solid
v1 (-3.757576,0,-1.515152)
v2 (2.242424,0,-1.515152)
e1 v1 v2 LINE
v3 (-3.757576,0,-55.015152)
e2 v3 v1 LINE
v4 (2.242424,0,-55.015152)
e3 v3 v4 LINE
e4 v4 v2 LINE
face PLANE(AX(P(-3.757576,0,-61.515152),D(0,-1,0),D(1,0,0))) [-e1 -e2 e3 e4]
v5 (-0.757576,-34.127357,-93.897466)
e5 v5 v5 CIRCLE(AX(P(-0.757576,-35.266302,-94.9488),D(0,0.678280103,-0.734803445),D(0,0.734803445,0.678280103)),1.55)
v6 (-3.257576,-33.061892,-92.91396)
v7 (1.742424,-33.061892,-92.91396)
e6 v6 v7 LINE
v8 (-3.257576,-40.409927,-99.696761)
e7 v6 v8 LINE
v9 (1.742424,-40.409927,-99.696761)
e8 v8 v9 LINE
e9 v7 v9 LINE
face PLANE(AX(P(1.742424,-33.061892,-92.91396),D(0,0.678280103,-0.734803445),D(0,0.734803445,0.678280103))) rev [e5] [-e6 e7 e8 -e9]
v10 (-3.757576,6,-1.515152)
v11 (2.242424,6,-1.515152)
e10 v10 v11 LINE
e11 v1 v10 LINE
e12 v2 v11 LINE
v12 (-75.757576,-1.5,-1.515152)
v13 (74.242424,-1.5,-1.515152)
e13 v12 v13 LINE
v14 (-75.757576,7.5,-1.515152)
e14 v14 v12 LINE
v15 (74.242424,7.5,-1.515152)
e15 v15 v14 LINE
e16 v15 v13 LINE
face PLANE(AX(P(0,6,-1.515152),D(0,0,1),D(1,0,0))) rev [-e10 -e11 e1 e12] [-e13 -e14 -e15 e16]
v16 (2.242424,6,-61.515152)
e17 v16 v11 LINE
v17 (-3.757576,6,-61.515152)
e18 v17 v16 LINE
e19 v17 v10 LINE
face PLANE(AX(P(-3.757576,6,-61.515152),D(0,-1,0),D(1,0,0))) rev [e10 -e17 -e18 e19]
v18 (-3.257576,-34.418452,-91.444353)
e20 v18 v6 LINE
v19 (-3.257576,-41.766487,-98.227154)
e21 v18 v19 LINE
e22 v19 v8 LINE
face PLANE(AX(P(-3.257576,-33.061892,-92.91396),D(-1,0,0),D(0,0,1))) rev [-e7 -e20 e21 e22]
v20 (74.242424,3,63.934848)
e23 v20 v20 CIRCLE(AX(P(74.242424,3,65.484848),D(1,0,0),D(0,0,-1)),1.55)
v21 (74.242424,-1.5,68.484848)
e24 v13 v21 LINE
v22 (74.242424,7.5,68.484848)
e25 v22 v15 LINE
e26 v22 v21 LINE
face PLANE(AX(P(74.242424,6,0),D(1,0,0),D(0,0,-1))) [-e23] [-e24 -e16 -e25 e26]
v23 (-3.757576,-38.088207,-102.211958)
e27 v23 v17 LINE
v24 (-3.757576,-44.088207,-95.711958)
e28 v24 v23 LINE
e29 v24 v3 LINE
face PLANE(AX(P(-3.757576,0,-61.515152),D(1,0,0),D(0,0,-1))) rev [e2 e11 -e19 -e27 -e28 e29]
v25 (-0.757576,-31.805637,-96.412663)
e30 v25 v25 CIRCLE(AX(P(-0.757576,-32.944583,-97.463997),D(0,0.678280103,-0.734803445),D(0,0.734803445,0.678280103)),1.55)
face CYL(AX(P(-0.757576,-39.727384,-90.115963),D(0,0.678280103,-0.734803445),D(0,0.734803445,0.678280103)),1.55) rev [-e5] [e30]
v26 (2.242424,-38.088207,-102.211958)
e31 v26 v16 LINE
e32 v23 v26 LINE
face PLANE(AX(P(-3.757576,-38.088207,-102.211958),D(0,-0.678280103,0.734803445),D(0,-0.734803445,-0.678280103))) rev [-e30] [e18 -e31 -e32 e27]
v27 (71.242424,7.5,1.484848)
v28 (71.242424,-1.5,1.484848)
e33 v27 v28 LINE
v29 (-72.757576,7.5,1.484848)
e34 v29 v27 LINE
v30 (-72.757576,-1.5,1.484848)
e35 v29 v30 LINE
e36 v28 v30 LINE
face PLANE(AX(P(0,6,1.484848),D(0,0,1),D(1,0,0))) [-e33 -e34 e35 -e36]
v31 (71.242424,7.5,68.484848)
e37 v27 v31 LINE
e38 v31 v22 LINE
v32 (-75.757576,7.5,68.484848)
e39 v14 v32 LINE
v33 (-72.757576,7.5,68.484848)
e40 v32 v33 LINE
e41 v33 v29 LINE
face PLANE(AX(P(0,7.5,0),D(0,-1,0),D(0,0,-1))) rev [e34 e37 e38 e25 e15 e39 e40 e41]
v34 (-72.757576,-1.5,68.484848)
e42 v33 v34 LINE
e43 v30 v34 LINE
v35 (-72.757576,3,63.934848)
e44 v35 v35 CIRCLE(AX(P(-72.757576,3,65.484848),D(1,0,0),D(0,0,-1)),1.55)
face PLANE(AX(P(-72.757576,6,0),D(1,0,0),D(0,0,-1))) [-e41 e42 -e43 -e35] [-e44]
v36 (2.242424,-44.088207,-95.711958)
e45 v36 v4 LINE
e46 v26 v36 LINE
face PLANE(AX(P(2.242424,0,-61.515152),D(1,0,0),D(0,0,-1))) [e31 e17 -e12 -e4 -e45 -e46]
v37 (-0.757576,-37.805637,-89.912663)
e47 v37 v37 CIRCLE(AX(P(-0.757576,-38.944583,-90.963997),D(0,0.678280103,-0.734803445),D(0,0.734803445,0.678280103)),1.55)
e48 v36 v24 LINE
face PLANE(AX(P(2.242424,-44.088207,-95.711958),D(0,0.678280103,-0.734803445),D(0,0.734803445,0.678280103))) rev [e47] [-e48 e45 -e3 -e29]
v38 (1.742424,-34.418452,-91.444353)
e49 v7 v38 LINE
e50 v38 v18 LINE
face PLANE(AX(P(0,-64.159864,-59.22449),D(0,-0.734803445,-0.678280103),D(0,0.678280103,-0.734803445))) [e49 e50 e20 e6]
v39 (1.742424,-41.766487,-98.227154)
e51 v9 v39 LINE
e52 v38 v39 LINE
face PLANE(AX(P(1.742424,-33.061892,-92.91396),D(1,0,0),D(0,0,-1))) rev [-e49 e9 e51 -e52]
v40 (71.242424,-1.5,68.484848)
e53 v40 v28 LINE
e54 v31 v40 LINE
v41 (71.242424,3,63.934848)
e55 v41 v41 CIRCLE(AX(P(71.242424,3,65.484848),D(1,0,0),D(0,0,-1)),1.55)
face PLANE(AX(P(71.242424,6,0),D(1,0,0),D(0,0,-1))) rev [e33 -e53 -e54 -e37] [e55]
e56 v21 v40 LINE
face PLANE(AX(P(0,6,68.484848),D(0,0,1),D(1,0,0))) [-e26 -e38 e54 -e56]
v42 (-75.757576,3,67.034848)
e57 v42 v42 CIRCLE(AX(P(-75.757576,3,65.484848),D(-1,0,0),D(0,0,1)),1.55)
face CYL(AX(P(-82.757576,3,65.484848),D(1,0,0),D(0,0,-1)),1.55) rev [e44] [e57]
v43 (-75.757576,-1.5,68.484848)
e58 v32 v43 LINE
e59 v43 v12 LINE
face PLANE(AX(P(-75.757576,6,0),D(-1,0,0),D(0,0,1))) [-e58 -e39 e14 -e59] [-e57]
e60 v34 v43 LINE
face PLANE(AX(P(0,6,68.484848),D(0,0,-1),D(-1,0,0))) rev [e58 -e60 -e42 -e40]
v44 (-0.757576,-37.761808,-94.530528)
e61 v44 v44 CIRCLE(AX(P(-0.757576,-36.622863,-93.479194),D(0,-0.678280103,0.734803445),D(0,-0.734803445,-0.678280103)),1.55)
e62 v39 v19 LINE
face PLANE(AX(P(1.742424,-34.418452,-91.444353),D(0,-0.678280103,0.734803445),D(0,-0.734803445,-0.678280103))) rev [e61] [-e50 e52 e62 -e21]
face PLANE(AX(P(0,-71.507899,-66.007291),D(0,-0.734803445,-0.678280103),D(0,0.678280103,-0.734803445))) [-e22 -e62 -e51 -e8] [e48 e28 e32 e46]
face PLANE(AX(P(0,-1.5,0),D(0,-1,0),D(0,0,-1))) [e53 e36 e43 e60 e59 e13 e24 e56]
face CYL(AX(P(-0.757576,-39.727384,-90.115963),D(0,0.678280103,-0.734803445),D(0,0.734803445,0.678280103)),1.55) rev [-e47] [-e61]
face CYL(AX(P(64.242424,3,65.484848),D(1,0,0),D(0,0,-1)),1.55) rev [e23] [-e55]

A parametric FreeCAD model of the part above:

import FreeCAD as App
import Part
import Sketcher
Q = App.Units.Quantity

doc = App.newDocument("Part")
body = doc.addObject("PartDesign::Body", "Body")

# Sketch on XZ plane
sketch1 = doc.addObject("Sketcher::SketchObject", "Sketch")
body.addObject(sketch1)
sketch1.AttachmentSupport = (doc.XZ_Plane, [""])
sketch1.MapMode = "FlatFace"
sketch1.addGeometry([
    Part.LineSegment(App.Vector(-72.8, 68.5, 0), App.Vector(-72.8, 1.5, 0)),  # 0
    Part.LineSegment(App.Vector(-72.8, 1.5, 0), App.Vector(71.2, 1.5, 0)),  # 1
    Part.LineSegment(App.Vector(71.2, 1.5, 0), App.Vector(71.2, 68.5, 0)),  # 2
    Part.LineSegment(App.Vector(71.2, 68.5, 0), App.Vector(74.2, 68.5, 0)),  # 3
    Part.LineSegment(App.Vector(74.2, 68.5, 0), App.Vector(74.2, -1.5, 0)),  # 4
    Part.LineSegment(App.Vector(74.2, -1.5, 0), App.Vector(-75.8, -1.5, 0)),  # 5
    Part.LineSegment(App.Vector(-75.8, -1.5, 0), App.Vector(-75.8, 68.5, 0)),  # 6
    Part.LineSegment(App.Vector(-75.8, 68.5, 0), App.Vector(-72.8, 68.5, 0)),  # 7
], False)
sketch1.addConstraint([
    Sketcher.Constraint("Coincident", 0, 2, 1, 1),
    Sketcher.Constraint("Coincident", 1, 2, 2, 1),
    Sketcher.Constraint("Coincident", 2, 2, 3, 1),
    Sketcher.Constraint("Coincident", 3, 2, 4, 1),
    Sketcher.Constraint("Coincident", 4, 2, 5, 1),
    Sketcher.Constraint("Coincident", 5, 2, 6, 1),
    Sketcher.Constraint("Coincident", 6, 2, 7, 1),
    Sketcher.Constraint("Coincident", 7, 2, 0, 1),
    Sketcher.Constraint("Vertical", 0),
    Sketcher.Constraint("Horizontal", 1),
    Sketcher.Constraint("Vertical", 2),
    Sketcher.Constraint("Horizontal", 3),
    Sketcher.Constraint("Vertical", 4),
    Sketcher.Constraint("Horizontal", 5),
    Sketcher.Constraint("Vertical", 6),
    Sketcher.Constraint("Horizontal", 7),
    Sketcher.Constraint("Horizontal", 3, 2, 6, 2),
    Sketcher.Constraint("Equal", 3, 7),
    Sketcher.Constraint("DistanceX", 1, 1, 1, 2, Q("144 mm")),
    Sketcher.Constraint("DistanceX", 3, 1, 3, 2, Q("3 mm")),
    Sketcher.Constraint("DistanceY", 0, 2, 0, 1, Q("67 mm")),
    Sketcher.Constraint("DistanceY", 4, 2, 4, 1, Q("70 mm")),
    Sketcher.Constraint("DistanceY", -1, 1, 0, 2, Q("1.484848 mm")),
    Sketcher.Constraint("DistanceX", 0, 2, -1, 1, Q("72.757576 mm")),
])
pad1 = doc.addObject("PartDesign::Pad", "Pad")
body.addObject(pad1)
pad1.Profile = sketch1
pad1.Length = 6
pad1.Reversed = True

# Sketch on YZ plane
sketch2 = doc.addObject("Sketcher::SketchObject", "Sketch001")
body.addObject(sketch2)
sketch2.AttachmentSupport = (doc.YZ_Plane, [""])
sketch2.MapMode = "FlatFace"
sketch2.AttachmentOffset = App.Placement(App.Vector(0, 0, -72.757576), App.Rotation())
sketch2.addGeometry(Part.Circle(App.Vector(3, 65.5, 0), App.Vector(0, 0, 1), 1.6), False)
sketch2.addConstraint([
    Sketcher.Constraint("Diameter", 0, Q("3.1 mm")),
    Sketcher.Constraint("DistanceX", -1, 1, 0, 3, Q("3 mm")),
    Sketcher.Constraint("DistanceY", -1, 1, 0, 3, Q("65.484848 mm")),
])
pocket1 = doc.addObject("PartDesign::Pocket", "Pocket")
body.addObject(pocket1)
pocket1.Profile = sketch2
pocket1.Length = 10

# Sketch on YZ plane
sketch3 = doc.addObject("Sketcher::SketchObject", "Sketch002")
body.addObject(sketch3)
sketch3.AttachmentSupport = (doc.YZ_Plane, [""])
sketch3.MapMode = "FlatFace"
sketch3.AttachmentOffset = App.Placement(App.Vector(0, 0, 74.242424), App.Rotation())
sketch3.addGeometry(Part.Circle(App.Vector(3, 65.5, 0), App.Vector(0, 0, 1), 1.6), False)
sketch3.addConstraint([
    Sketcher.Constraint("Diameter", 0, Q("3.1 mm")),
    Sketcher.Constraint("DistanceX", -1, 1, 0, 3, Q("3 mm")),
    Sketcher.Constraint("DistanceY", -1, 1, 0, 3, Q("65.484848 mm")),
])
pocket2 = doc.addObject("PartDesign::Pocket", "Pocket001")
body.addObject(pocket2)
pocket2.Profile = sketch3
pocket2.Length = 10

# Sketch on XZ plane
sketch4 = doc.addObject("Sketcher::SketchObject", "Sketch003")
body.addObject(sketch4)
sketch4.AttachmentSupport = (doc.XZ_Plane, [""])
sketch4.MapMode = "FlatFace"
sketch4.AttachmentOffset = App.Placement(App.Vector(0, 0, -6), App.Rotation())
sketch4.addGeometry([
    Part.LineSegment(App.Vector(74.2, -1.5, 0), App.Vector(-75.8, -1.5, 0)),  # 0
    Part.LineSegment(App.Vector(-75.8, -1.5, 0), App.Vector(-75.8, 68.5, 0)),  # 1
    Part.LineSegment(App.Vector(-75.8, 68.5, 0), App.Vector(-72.8, 68.5, 0)),  # 2
    Part.LineSegment(App.Vector(-72.8, 68.5, 0), App.Vector(-72.8, 1.5, 0)),  # 3
    Part.LineSegment(App.Vector(-72.8, 1.5, 0), App.Vector(71.2, 1.5, 0)),  # 4
    Part.LineSegment(App.Vector(71.2, 1.5, 0), App.Vector(71.2, 68.5, 0)),  # 5
    Part.LineSegment(App.Vector(71.2, 68.5, 0), App.Vector(74.2, 68.5, 0)),  # 6
    Part.LineSegment(App.Vector(74.2, 68.5, 0), App.Vector(74.2, -1.5, 0)),  # 7
], False)
sketch4.addConstraint([
    Sketcher.Constraint("Coincident", 0, 2, 1, 1),
    Sketcher.Constraint("Coincident", 1, 2, 2, 1),
    Sketcher.Constraint("Coincident", 2, 2, 3, 1),
    Sketcher.Constraint("Coincident", 3, 2, 4, 1),
    Sketcher.Constraint("Coincident", 4, 2, 5, 1),
    Sketcher.Constraint("Coincident", 5, 2, 6, 1),
    Sketcher.Constraint("Coincident", 6, 2, 7, 1),
    Sketcher.Constraint("Coincident", 7, 2, 0, 1),
    Sketcher.Constraint("Horizontal", 0),
    Sketcher.Constraint("Vertical", 1),
    Sketcher.Constraint("Horizontal", 2),
    Sketcher.Constraint("Vertical", 3),
    Sketcher.Constraint("Horizontal", 4),
    Sketcher.Constraint("Vertical", 5),
    Sketcher.Constraint("Horizontal", 6),
    Sketcher.Constraint("Vertical", 7),
    Sketcher.Constraint("Horizontal", 2, 2, 5, 2),
    Sketcher.Constraint("Equal", 2, 6),
    Sketcher.Constraint("DistanceX", 0, 2, 0, 1, Q("150 mm")),
    Sketcher.Constraint("DistanceX", 2, 1, 2, 2, Q("3 mm")),
    Sketcher.Constraint("DistanceY", 1, 1, 1, 2, Q("70 mm")),
    Sketcher.Constraint("DistanceY", 3, 2, 3, 1, Q("67 mm")),
    Sketcher.Constraint("DistanceY", 0, 2, -1, 1, Q("1.515152 mm")),
    Sketcher.Constraint("DistanceX", 0, 2, -1, 1, Q("75.757576 mm")),
])
pad2 = doc.addObject("PartDesign::Pad", "Pad001")
body.addObject(pad2)
pad2.Profile = sketch4
pad2.Length = 1.5
pad2.Reversed = True

# Sketch on XZ plane
sketch5 = doc.addObject("Sketcher::SketchObject", "Sketch004")
body.addObject(sketch5)
sketch5.AttachmentSupport = (doc.XZ_Plane, [""])
sketch5.MapMode = "FlatFace"
sketch5.addGeometry([
    Part.LineSegment(App.Vector(-75.8, 68.5, 0), App.Vector(-75.8, -1.5, 0)),  # 0
    Part.LineSegment(App.Vector(-75.8, -1.5, 0), App.Vector(74.2, -1.5, 0)),  # 1
    Part.LineSegment(App.Vector(74.2, -1.5, 0), App.Vector(74.2, 68.5, 0)),  # 2
    Part.LineSegment(App.Vector(74.2, 68.5, 0), App.Vector(71.2, 68.5, 0)),  # 3
    Part.LineSegment(App.Vector(71.2, 68.5, 0), App.Vector(71.2, 1.5, 0)),  # 4
    Part.LineSegment(App.Vector(71.2, 1.5, 0), App.Vector(-72.8, 1.5, 0)),  # 5
    Part.LineSegment(App.Vector(-72.8, 1.5, 0), App.Vector(-72.8, 68.5, 0)),  # 6
    Part.LineSegment(App.Vector(-72.8, 68.5, 0), App.Vector(-75.8, 68.5, 0)),  # 7
], False)
sketch5.addConstraint([
    Sketcher.Constraint("Coincident", 0, 2, 1, 1),
    Sketcher.Constraint("Coincident", 1, 2, 2, 1),
    Sketcher.Constraint("Coincident", 2, 2, 3, 1),
    Sketcher.Constraint("Coincident", 3, 2, 4, 1),
    Sketcher.Constraint("Coincident", 4, 2, 5, 1),
    Sketcher.Constraint("Coincident", 5, 2, 6, 1),
    Sketcher.Constraint("Coincident", 6, 2, 7, 1),
    Sketcher.Constraint("Coincident", 7, 2, 0, 1),
    Sketcher.Constraint("Vertical", 0),
    Sketcher.Constraint("Horizontal", 1),
    Sketcher.Constraint("Vertical", 2),
    Sketcher.Constraint("Horizontal", 3),
    Sketcher.Constraint("Vertical", 4),
    Sketcher.Constraint("Horizontal", 5),
    Sketcher.Constraint("Vertical", 6),
    Sketcher.Constraint("Horizontal", 7),
    Sketcher.Constraint("Horizontal", 3, 2, 6, 2),
    Sketcher.Constraint("Equal", 3, 7),
    Sketcher.Constraint("DistanceX", 1, 1, 1, 2, Q("150 mm")),
    Sketcher.Constraint("DistanceX", 3, 2, 3, 1, Q("3 mm")),
    Sketcher.Constraint("DistanceY", 0, 2, 0, 1, Q("70 mm")),
    Sketcher.Constraint("DistanceY", 4, 2, 4, 1, Q("67 mm")),
    Sketcher.Constraint("DistanceY", 0, 2, -1, 1, Q("1.515152 mm")),
    Sketcher.Constraint("DistanceX", 0, 2, -1, 1, Q("75.757576 mm")),
])
pad3 = doc.addObject("PartDesign::Pad", "Pad002")
body.addObject(pad3)
pad3.Profile = sketch5
pad3.Length = 1.5

# Sketch on XY plane
sketch6 = doc.addObject("Sketcher::SketchObject", "Sketch005")
body.addObject(sketch6)
sketch6.AttachmentSupport = (doc.XY_Plane, [""])
sketch6.MapMode = "FlatFace"
sketch6.AttachmentOffset = App.Placement(App.Vector(0, 0, -1.515152), App.Rotation())
sketch6.addGeometry([
    Part.LineSegment(App.Vector(2, 6, 0), App.Vector(2, 0, 0)),
    Part.LineSegment(App.Vector(2, 0, 0), App.Vector(-4, 0, 0)),
    Part.LineSegment(App.Vector(-4, 0, 0), App.Vector(-4, 6, 0)),
    Part.LineSegment(App.Vector(-4, 6, 0), App.Vector(2, 6, 0)),
], False)
sketch6.addConstraint([
    Sketcher.Constraint("Coincident", 0, 2, 1, 1),
    Sketcher.Constraint("Coincident", 1, 2, 2, 1),
    Sketcher.Constraint("Coincident", 2, 2, 3, 1),
    Sketcher.Constraint("Coincident", 3, 2, 0, 1),
    Sketcher.Constraint("Vertical", 0),
    Sketcher.Constraint("Horizontal", 1),
    Sketcher.Constraint("Vertical", 2),
    Sketcher.Constraint("Horizontal", 3),
    Sketcher.Constraint("PointOnObject", 0, 2, -1),
    Sketcher.Constraint("Equal", 3, 0),
    Sketcher.Constraint("DistanceX", 1, 2, 1, 1, Q("6 mm")),
    Sketcher.Constraint("DistanceX", -1, 1, 0, 2, Q("2.242424 mm")),
])
pad4 = doc.addObject("PartDesign::Pad", "Pad003")
body.addObject(pad4)
pad4.Profile = sketch6
pad4.Length = 60
pad4.Reversed = True

# Sketch on YZ plane
sketch7 = doc.addObject("Sketcher::SketchObject", "Sketch006")
body.addObject(sketch7)
sketch7.AttachmentSupport = (doc.YZ_Plane, [""])
sketch7.MapMode = "FlatFace"
sketch7.AttachmentOffset = App.Placement(App.Vector(0, 0, 2.242424), App.Rotation())
sketch7.addGeometry([
    Part.LineSegment(App.Vector(6, -62, 0), App.Vector(0, -55, 0)),
    Part.LineSegment(App.Vector(0, -55, 0), App.Vector(0, -62, 0)),
    Part.LineSegment(App.Vector(0, -62, 0), App.Vector(6, -62, 0)),
], False)
sketch7.addConstraint([
    Sketcher.Constraint("Coincident", 0, 2, 1, 1),
    Sketcher.Constraint("Coincident", 1, 2, 2, 1),
    Sketcher.Constraint("Coincident", 2, 2, 0, 1),
    Sketcher.Constraint("Vertical", 1),
    Sketcher.Constraint("Horizontal", 2),
    Sketcher.Constraint("PointOnObject", 0, 2, -2),
    Sketcher.Constraint("DistanceX", 2, 1, 2, 2, Q("6 mm")),
    Sketcher.Constraint("DistanceY", 1, 2, 1, 1, Q("6.5 mm")),
    Sketcher.Constraint("DistanceY", 0, 2, -1, 1, Q("55.015152 mm")),
])
pocket3 = doc.addObject("PartDesign::Pocket", "Pocket002")
body.addObject(pocket3)
pocket3.Profile = sketch7
pocket3.Length = 60

# Sketch on an angled plane
sketch8 = doc.addObject("Sketcher::SketchObject", "Sketch007")
body.addObject(sketch8)
sketch8.Placement = App.Placement(App.Vector(0, -27.419692, -25.310485), App.Rotation(App.Vector(1, 0, 0), App.Vector(0, -0.678280103, 0.734803445), App.Vector(0, -0.734803445, -0.678280103), "ZXY"))
sketch8.addGeometry([
    Part.LineSegment(App.Vector(-4, -40, 0), App.Vector(-4, -49, 0)),
    Part.LineSegment(App.Vector(-4, -49, 0), App.Vector(2, -49, 0)),
    Part.LineSegment(App.Vector(2, -49, 0), App.Vector(2, -40, 0)),
    Part.LineSegment(App.Vector(2, -40, 0), App.Vector(-4, -40, 0)),
], False)
sketch8.addConstraint([
    Sketcher.Constraint("Coincident", 0, 2, 1, 1),
    Sketcher.Constraint("Coincident", 1, 2, 2, 1),
    Sketcher.Constraint("Coincident", 2, 2, 3, 1),
    Sketcher.Constraint("Coincident", 3, 2, 0, 1),
    Sketcher.Constraint("Vertical", 0),
    Sketcher.Constraint("Horizontal", 1),
    Sketcher.Constraint("Vertical", 2),
    Sketcher.Constraint("Horizontal", 3),
    Sketcher.Constraint("DistanceX", 1, 1, 1, 2, Q("6 mm")),
    Sketcher.Constraint("DistanceY", 0, 2, 0, 1, Q("8.845903 mm")),
    Sketcher.Constraint("DistanceX", 0, 2, -1, 1, Q("3.757576 mm")),
    Sketcher.Constraint("DistanceY", 0, 2, -1, 1, Q("49.271226 mm")),
])
pad5 = doc.addObject("PartDesign::Pad", "Pad004")
body.addObject(pad5)
pad5.Profile = sketch8
pad5.Length = 60

# Sketch on an angled plane
sketch9 = doc.addObject("Sketcher::SketchObject", "Sketch008")
body.addObject(sketch9)
sketch9.Placement = App.Placement(App.Vector(0, -71.507899, -66.007291), App.Rotation(App.Vector(1, 0, 0), App.Vector(0, -0.678280103, 0.734803445), App.Vector(0, -0.734803445, -0.678280103), "ZXY"))
sketch9.addGeometry([
    Part.LineSegment(App.Vector(-3.3, -43.8, 0), App.Vector(-3.3, -45.8, 0)),
    Part.LineSegment(App.Vector(-3.3, -45.8, 0), App.Vector(1.7, -45.8, 0)),
    Part.LineSegment(App.Vector(1.7, -45.8, 0), App.Vector(1.7, -43.8, 0)),
    Part.LineSegment(App.Vector(1.7, -43.8, 0), App.Vector(-3.3, -43.8, 0)),
], False)
sketch9.addConstraint([
    Sketcher.Constraint("Coincident", 0, 2, 1, 1),
    Sketcher.Constraint("Coincident", 1, 2, 2, 1),
    Sketcher.Constraint("Coincident", 2, 2, 3, 1),
    Sketcher.Constraint("Coincident", 3, 2, 0, 1),
    Sketcher.Constraint("Vertical", 0),
    Sketcher.Constraint("Horizontal", 1),
    Sketcher.Constraint("Vertical", 2),
    Sketcher.Constraint("Horizontal", 3),
    Sketcher.Constraint("DistanceX", 1, 1, 1, 2, Q("5 mm")),
    Sketcher.Constraint("DistanceY", 0, 2, 0, 1, Q("2 mm")),
    Sketcher.Constraint("DistanceX", 0, 2, -1, 1, Q("3.257576 mm")),
    Sketcher.Constraint("DistanceY", 0, 2, -1, 1, Q("45.848274 mm")),
])
pocket4 = doc.addObject("PartDesign::Pocket", "Pocket003")
body.addObject(pocket4)
pocket4.Profile = sketch9
pocket4.Length = 10

# Sketch on an angled plane
sketch10 = doc.addObject("Sketcher::SketchObject", "Sketch009")
body.addObject(sketch10)
sketch10.Placement = App.Placement(App.Vector(0, 33.419692, -36.204666), App.Rotation(App.Vector(-1, 0, 0), App.Vector(0, 0.734803445, 0.678280103), App.Vector(0, 0.678280103, -0.734803445), "ZXY"))
sketch10.addGeometry(Part.Circle(App.Vector(0.8, -90.3, 0), App.Vector(0, 0, 1), 1.6), False)
sketch10.addConstraint([
    Sketcher.Constraint("Diameter", 0, Q("3.1 mm")),
    Sketcher.Constraint("DistanceX", -1, 1, 0, 3, Q("0.757576 mm")),
    Sketcher.Constraint("DistanceY", 0, 3, -1, 1, Q("90.315683 mm")),
])
pocket5 = doc.addObject("PartDesign::Pocket", "Pocket004")
body.addObject(pocket5)
pocket5.Profile = sketch10
pocket5.Length = 10

doc.recompute()
